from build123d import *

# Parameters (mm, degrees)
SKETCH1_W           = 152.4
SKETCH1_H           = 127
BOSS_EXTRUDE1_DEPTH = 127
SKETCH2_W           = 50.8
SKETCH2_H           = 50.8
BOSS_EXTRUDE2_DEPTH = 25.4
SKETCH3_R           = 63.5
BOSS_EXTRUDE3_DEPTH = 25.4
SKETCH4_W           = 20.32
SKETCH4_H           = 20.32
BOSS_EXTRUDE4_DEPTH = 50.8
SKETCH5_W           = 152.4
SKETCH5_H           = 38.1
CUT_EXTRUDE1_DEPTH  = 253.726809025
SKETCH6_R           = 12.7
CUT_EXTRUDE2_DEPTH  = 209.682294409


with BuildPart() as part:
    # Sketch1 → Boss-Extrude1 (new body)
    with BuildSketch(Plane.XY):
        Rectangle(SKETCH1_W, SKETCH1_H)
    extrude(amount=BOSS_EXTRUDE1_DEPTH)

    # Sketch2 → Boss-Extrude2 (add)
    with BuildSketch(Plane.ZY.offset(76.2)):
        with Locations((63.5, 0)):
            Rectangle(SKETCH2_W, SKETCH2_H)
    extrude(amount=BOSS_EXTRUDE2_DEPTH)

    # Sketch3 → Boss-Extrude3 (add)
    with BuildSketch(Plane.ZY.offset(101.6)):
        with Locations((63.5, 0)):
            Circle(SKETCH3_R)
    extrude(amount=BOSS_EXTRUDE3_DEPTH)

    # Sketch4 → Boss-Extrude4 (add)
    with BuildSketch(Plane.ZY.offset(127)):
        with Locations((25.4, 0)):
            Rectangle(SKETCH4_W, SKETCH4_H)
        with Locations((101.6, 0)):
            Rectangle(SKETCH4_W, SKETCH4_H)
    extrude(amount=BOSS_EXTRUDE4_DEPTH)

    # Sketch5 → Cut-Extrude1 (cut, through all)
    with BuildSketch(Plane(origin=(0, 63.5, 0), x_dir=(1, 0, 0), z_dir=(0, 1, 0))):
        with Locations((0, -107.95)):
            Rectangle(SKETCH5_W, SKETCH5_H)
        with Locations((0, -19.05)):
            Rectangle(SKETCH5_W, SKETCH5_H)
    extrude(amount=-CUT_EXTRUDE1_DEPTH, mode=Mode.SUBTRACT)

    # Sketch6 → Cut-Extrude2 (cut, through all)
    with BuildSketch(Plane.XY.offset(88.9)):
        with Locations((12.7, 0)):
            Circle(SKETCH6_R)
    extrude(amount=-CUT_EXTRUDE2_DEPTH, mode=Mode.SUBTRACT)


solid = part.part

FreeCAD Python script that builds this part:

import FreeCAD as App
import Part
import Sketcher
Q = App.Units.Quantity

doc = App.newDocument("Part")
body = doc.addObject("PartDesign::Body", "Body")

sketch1 = doc.addObject("Sketcher::SketchObject", "Sketch")
body.addObject(sketch1)
sketch1.AttachmentSupport = (doc.XY_Plane, [""])
sketch1.MapMode = "FlatFace"
sketch1.addGeometry([
    Part.LineSegment(App.Vector(-76.2, 63.5, 0), App.Vector(-76.2, -63.5, 0)),
    Part.LineSegment(App.Vector(-76.2, -63.5, 0), App.Vector(76.2, -63.5, 0)),
    Part.LineSegment(App.Vector(76.2, -63.5, 0), App.Vector(76.2, 63.5, 0)),
    Part.LineSegment(App.Vector(76.2, 63.5, 0), App.Vector(-76.2, 63.5, 0)),
], False)
sketch1.addConstraint([
    Sketcher.Constraint("Coincident", 0, 2, 1, 1),
    Sketcher.Constraint("Coincident", 1, 2, 2, 1),
    Sketcher.Constraint("Coincident", 2, 2, 3, 1),
    Sketcher.Constraint("Coincident", 3, 2, 0, 1),
    Sketcher.Constraint("Vertical", 0),
    Sketcher.Constraint("Horizontal", 1),
    Sketcher.Constraint("Vertical", 2),
    Sketcher.Constraint("Horizontal", 3),
    Sketcher.Constraint("Symmetric", 0, 2, 2, 2, -1, 1),
    Sketcher.Constraint("DistanceX", 1, 1, 1, 2, Q("6 in")),
    Sketcher.Constraint("DistanceY", 0, 2, 0, 1, Q("5 in")),
])
pad1 = doc.addObject("PartDesign::Pad", "Pad")
body.addObject(pad1)
pad1.Profile = sketch1
pad1.Length = Q("5 in")

sketch2 = doc.addObject("Sketcher::SketchObject", "Sketch001")
body.addObject(sketch2)
sketch2.AttachmentSupport = (doc.YZ_Plane, [""])
sketch2.MapMode = "FlatFace"
sketch2.AttachmentOffset = App.Placement(App.Vector(0, 0, -3 * 25.4), App.Rotation())
sketch2.addGeometry([
    Part.LineSegment(App.Vector(25.4, 38.1, 0), App.Vector(-25.4, 38.1, 0)),
    Part.LineSegment(App.Vector(-25.4, 38.1, 0), App.Vector(-25.4, 88.9, 0)),
    Part.LineSegment(App.Vector(-25.4, 88.9, 0), App.Vector(25.4, 88.9, 0)),
    Part.LineSegment(App.Vector(25.4, 88.9, 0), App.Vector(25.4, 38.1, 0)),
], False)
sketch2.addConstraint([
    Sketcher.Constraint("Coincident", 0, 2, 1, 1),
    Sketcher.Constraint("Coincident", 1, 2, 2, 1),
    Sketcher.Constraint("Coincident", 2, 2, 3, 1),
    Sketcher.Constraint("Coincident", 3, 2, 0, 1),
    Sketcher.Constraint("Horizontal", 0),
    Sketcher.Constraint("Vertical", 1),
    Sketcher.Constraint("Horizontal", 2),
    Sketcher.Constraint("Vertical", 3),
    Sketcher.Constraint("Equal", 2, 1),
    Sketcher.Constraint("DistanceX", 0, 2, 0, 1, Q("2 in")),
    Sketcher.Constraint("DistanceX", 0, 2, -1, 1, Q("1 in")),
    Sketcher.Constraint("DistanceY", -1, 1, 0, 2, Q("1.5 in")),
])
pad2 = doc.addObject("PartDesign::Pad", "Pad001")
body.addObject(pad2)
pad2.Profile = sketch2
pad2.Length = Q("1 in")
pad2.Reversed = True

sketch3 = doc.addObject("Sketcher::SketchObject", "Sketch002")
body.addObject(sketch3)
sketch3.AttachmentSupport = (doc.YZ_Plane, [""])
sketch3.MapMode = "FlatFace"
sketch3.AttachmentOffset = App.Placement(App.Vector(0, 0, -4 * 25.4), App.Rotation())
sketch3.addGeometry(Part.Circle(App.Vector(0, 63.5, 0), App.Vector(0, 0, 1), 63.5), False)
sketch3.addConstraint([
    Sketcher.Constraint("PointOnObject", 0, 3, -2),
    Sketcher.Constraint("Diameter", 0, Q("5 in")),
    Sketcher.Constraint("DistanceY", -1, 1, 0, 3, Q("2.5 in")),
])
pad3 = doc.addObject("PartDesign::Pad", "Pad002")
body.addObject(pad3)
pad3.Profile = sketch3
pad3.Length = Q("1 in")
pad3.Reversed = True

sketch4 = doc.addObject("Sketcher::SketchObject", "Sketch003")
body.addObject(sketch4)
sketch4.AttachmentSupport = (doc.YZ_Plane, [""])
sketch4.MapMode = "FlatFace"
sketch4.AttachmentOffset = App.Placement(App.Vector(0, 0, -5 * 25.4), App.Rotation())
sketch4.addGeometry([
    Part.LineSegment(App.Vector(10.16, 15.24, 0), App.Vector(-10.16, 15.24, 0)),
    Part.LineSegment(App.Vector(-10.16, 15.24, 0), App.Vector(-10.16, 35.56, 0)),
    Part.LineSegment(App.Vector(-10.16, 35.56, 0), App.Vector(10.16, 35.56, 0)),
    Part.LineSegment(App.Vector(10.16, 35.56, 0), App.Vector(10.16, 15.24, 0)),
    Part.LineSegment(App.Vector(10.16, 91.44, 0), App.Vector(-10.16, 91.44, 0)),
    Part.LineSegment(App.Vector(-10.16, 91.44, 0), App.Vector(-10.16, 111.76, 0)),
    Part.LineSegment(App.Vector(-10.16, 111.76, 0), App.Vector(10.16, 111.76, 0)),
    Part.LineSegment(App.Vector(10.16, 111.76, 0), App.Vector(10.16, 91.44, 0)),
], False)
sketch4.addConstraint([
    Sketcher.Constraint("Coincident", 0, 2, 1, 1),
    Sketcher.Constraint("Coincident", 1, 2, 2, 1),
    Sketcher.Constraint("Coincident", 2, 2, 3, 1),
    Sketcher.Constraint("Coincident", 3, 2, 0, 1),
    Sketcher.Constraint("Coincident", 4, 2, 5, 1),
    Sketcher.Constraint("Coincident", 5, 2, 6, 1),
    Sketcher.Constraint("Coincident", 6, 2, 7, 1),
    Sketcher.Constraint("Coincident", 7, 2, 4, 1),
    Sketcher.Constraint("Horizontal", 0),
    Sketcher.Constraint("Vertical", 1),
    Sketcher.Constraint("Horizontal", 2),
    Sketcher.Constraint("Vertical", 3),
    Sketcher.Constraint("Horizontal", 4),
    Sketcher.Constraint("Vertical", 5),
    Sketcher.Constraint("Horizontal", 6),
    Sketcher.Constraint("Vertical", 7),
    Sketcher.Constraint("Vertical", 1, 2, 4, 2),
    Sketcher.Constraint("Vertical", 3, 2, 6, 2),
    Sketcher.Constraint("Equal", 6, 1),
    Sketcher.Constraint("Equal", 3, 5),
    Sketcher.Constraint("DistanceX", 0, 2, 0, 1, Q("0.8 in")),
    Sketcher.Constraint("DistanceY", 0, 2, 4, 2, Q("3 in")),
    Sketcher.Constraint("DistanceX", 0, 2, -1, 1, Q("0.4 in")),
    Sketcher.Constraint("DistanceY", -1, 1, 0, 2, Q("0.6 in")),
])
pad4 = doc.addObject("PartDesign::Pad", "Pad003")
body.addObject(pad4)
pad4.Profile = sketch4
pad4.Length = Q("2 in")
pad4.Reversed = True

sketch5 = doc.addObject("Sketcher::SketchObject", "Sketch004")
body.addObject(sketch5)
sketch5.AttachmentSupport = (doc.XZ_Plane, [""])
sketch5.MapMode = "FlatFace"
sketch5.AttachmentOffset = App.Placement(App.Vector(0, 0, -2.5 * 25.4), App.Rotation())
sketch5.addGeometry([
    Part.LineSegment(App.Vector(-76.2, 88.9, 0), App.Vector(-76.2, 127, 0)),
    Part.LineSegment(App.Vector(-76.2, 127, 0), App.Vector(76.2, 127, 0)),
    Part.LineSegment(App.Vector(76.2, 127, 0), App.Vector(76.2, 88.9, 0)),
    Part.LineSegment(App.Vector(76.2, 88.9, 0), App.Vector(-76.2, 88.9, 0)),
    Part.LineSegment(App.Vector(-76.2, 0, 0), App.Vector(-76.2, 38.1, 0)),
    Part.LineSegment(App.Vector(-76.2, 38.1, 0), App.Vector(76.2, 38.1, 0)),
    Part.LineSegment(App.Vector(76.2, 38.1, 0), App.Vector(76.2, 0, 0)),
    Part.LineSegment(App.Vector(76.2, 0, 0), App.Vector(-76.2, 0, 0)),
], False)
sketch5.addConstraint([
    Sketcher.Constraint("Coincident", 0, 2, 1, 1),
    Sketcher.Constraint("Coincident", 1, 2, 2, 1),
    Sketcher.Constraint("Coincident", 2, 2, 3, 1),
    Sketcher.Constraint("Coincident", 3, 2, 0, 1),
    Sketcher.Constraint("Coincident", 4, 2, 5, 1),
    Sketcher.Constraint("Coincident", 5, 2, 6, 1),
    Sketcher.Constraint("Coincident", 6, 2, 7, 1),
    Sketcher.Constraint("Coincident", 7, 2, 4, 1),
    Sketcher.Constraint("Vertical", 0),
    Sketcher.Constraint("Horizontal", 1),
    Sketcher.Constraint("Vertical", 2),
    Sketcher.Constraint("Horizontal", 3),
    Sketcher.Constraint("Vertical", 4),
    Sketcher.Constraint("Horizontal", 5),
    Sketcher.Constraint("Vertical", 6),
    Sketcher.Constraint("Horizontal", 7),
    Sketcher.Constraint("Symmetric", 6, 2, 7, 2, -1, 1),
    Sketcher.Constraint("Vertical", 3, 2, 4, 2),
    Sketcher.Constraint("Vertical", 2, 2, 5, 2),
    Sketcher.Constraint("Equal", 2, 4),
    Sketcher.Constraint("DistanceX", 1, 1, 1, 2, Q("6 in")),
    Sketcher.Constraint("DistanceY", 0, 1, 0, 2, Q("1.5 in")),
    Sketcher.Constraint("DistanceY", -1, 1, 0, 2, Q("5 in")),
])
pocket1 = doc.addObject("PartDesign::Pocket", "Pocket")
body.addObject(pocket1)
pocket1.Profile = sketch5
pocket1.Type = "ThroughAll"
pocket1.Reversed = True

sketch6 = doc.addObject("Sketcher::SketchObject", "Sketch005")
body.addObject(sketch6)
sketch6.AttachmentSupport = (doc.XY_Plane, [""])
sketch6.MapMode = "FlatFace"
sketch6.AttachmentOffset = App.Placement(App.Vector(0, 0, 3.5 * 25.4), App.Rotation())
sketch6.addGeometry(Part.Circle(App.Vector(12.7, 0, 0), App.Vector(0, 0, 1), 12.7), False)
sketch6.addConstraint([
    Sketcher.Constraint("PointOnObject", 0, 3, -1),
    Sketcher.Constraint("Diameter", 0, Q("1 in")),
    Sketcher.Constraint("DistanceX", -1, 1, 0, 3, Q("0.5 in")),
])
pocket2 = doc.addObject("PartDesign::Pocket", "Pocket001")
body.addObject(pocket2)
pocket2.Profile = sketch6
pocket2.Type = "ThroughAll"

doc.recompute()
